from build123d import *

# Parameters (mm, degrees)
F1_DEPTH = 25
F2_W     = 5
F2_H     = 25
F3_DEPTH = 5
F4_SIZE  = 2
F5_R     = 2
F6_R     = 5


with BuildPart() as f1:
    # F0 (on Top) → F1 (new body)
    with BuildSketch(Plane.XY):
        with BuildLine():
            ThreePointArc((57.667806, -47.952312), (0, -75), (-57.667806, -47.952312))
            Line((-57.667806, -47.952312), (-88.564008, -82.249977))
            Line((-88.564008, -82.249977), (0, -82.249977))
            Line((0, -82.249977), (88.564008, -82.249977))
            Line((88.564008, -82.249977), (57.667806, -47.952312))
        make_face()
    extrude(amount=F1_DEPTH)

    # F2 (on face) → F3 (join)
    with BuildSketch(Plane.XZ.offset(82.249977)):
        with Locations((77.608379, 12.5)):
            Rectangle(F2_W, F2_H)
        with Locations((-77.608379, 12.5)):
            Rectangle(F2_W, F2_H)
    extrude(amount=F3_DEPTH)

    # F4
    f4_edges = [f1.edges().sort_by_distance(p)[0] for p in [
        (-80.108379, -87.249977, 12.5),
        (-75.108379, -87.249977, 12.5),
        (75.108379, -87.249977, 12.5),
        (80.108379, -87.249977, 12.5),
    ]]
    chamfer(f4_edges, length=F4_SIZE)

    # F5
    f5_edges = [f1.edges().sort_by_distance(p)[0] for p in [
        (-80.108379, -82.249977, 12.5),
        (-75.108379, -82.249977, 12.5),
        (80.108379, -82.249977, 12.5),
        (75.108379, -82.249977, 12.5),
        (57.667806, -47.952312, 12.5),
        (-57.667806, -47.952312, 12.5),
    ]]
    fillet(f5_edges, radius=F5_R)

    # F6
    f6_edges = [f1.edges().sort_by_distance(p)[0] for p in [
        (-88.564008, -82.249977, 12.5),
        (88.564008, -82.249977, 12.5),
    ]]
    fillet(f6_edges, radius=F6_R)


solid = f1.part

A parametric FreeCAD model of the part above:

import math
import FreeCAD as App
import Part
import Sketcher

V = App.Vector
Q = App.Units.Quantity


def edges_at(feature, points):
    """Names of the edges that pass closest to the given points."""
    edges = feature.Shape.Edges
    near = lambda p: min(range(len(edges)), key=lambda i: edges[i].distToShape(Part.Vertex(*p))[0])
    return sorted({f"Edge{near(p) + 1}" for p in points})

doc = App.newDocument("Part")
body = doc.addObject("PartDesign::Body", "Body")

# Sketch on XY plane
sketch1 = doc.addObject("Sketcher::SketchObject", "Sketch")
body.addObject(sketch1)
sketch1.AttachmentSupport = (doc.XY_Plane, [""])
sketch1.MapMode = "FlatFace"
sketch1.addGeometry(Part.ArcOfCircle(Part.Circle(V(0, 0, 0), V(0, 0, 1), 75), math.radians(-140), math.radians(-40)), False)
sketch1.addGeometry(Part.LineSegment(V(-58, -48, 0), V(-89, -82, 0)), False)
sketch1.addGeometry(Part.LineSegment(V(-89, -82, 0), V(89, -82, 0)), False)
sketch1.addGeometry(Part.LineSegment(V(89, -82, 0), V(58, -48, 0)), False)
sketch1.addConstraint(Sketcher.Constraint("Coincident", 0, 1, 1, 1))
sketch1.addConstraint(Sketcher.Constraint("Coincident", 1, 2, 2, 1))
sketch1.addConstraint(Sketcher.Constraint("Coincident", 2, 2, 3, 1))
sketch1.addConstraint(Sketcher.Constraint("Coincident", 3, 2, 0, 2))
sketch1.addConstraint(Sketcher.Constraint("Horizontal", 2))
sketch1.addConstraint(Sketcher.Constraint("Coincident", 0, 3, -1, 1))
sketch1.addConstraint(Sketcher.Constraint("Horizontal", 0, 1, 3, 2))
sketch1.addConstraint(Sketcher.Constraint("Equal", 1, 3))
sketch1.addConstraint(Sketcher.Constraint("Radius", 0, Q("75.000001 mm")))
sketch1.addConstraint(Sketcher.Constraint("DistanceX", 2, 1, 2, 2, Q("177.128016 mm")))
sketch1.addConstraint(Sketcher.Constraint("DistanceY", 0, 1, -1, 1, Q("47.952312 mm")))
sketch1.addConstraint(Sketcher.Constraint("DistanceY", 1, 2, 0, 3, Q("82.249978 mm")))
pad1 = doc.addObject("PartDesign::Pad", "Pad")
body.addObject(pad1)
pad1.Profile = sketch1
pad1.Length = 25

# Sketch on XZ plane
sketch2 = doc.addObject("Sketcher::SketchObject", "Sketch001")
body.addObject(sketch2)
sketch2.AttachmentSupport = (doc.XZ_Plane, [""])
sketch2.MapMode = "FlatFace"
sketch2.AttachmentOffset = App.Placement(V(0, 0, 82.249977), App.Rotation())
sketch2.addGeometry(Part.LineSegment(V(75, 25, 0), V(75, 0, 0)), False)
sketch2.addGeometry(Part.LineSegment(V(75, 0, 0), V(80, 0, 0)), False)
sketch2.addGeometry(Part.LineSegment(V(80, 0, 0), V(80, 25, 0)), False)
sketch2.addGeometry(Part.LineSegment(V(80, 25, 0), V(75, 25, 0)), False)
sketch2.addGeometry(Part.LineSegment(V(-80, 25, 0), V(-80, 0, 0)), False)
sketch2.addGeometry(Part.LineSegment(V(-80, 0, 0), V(-75, 0, 0)), False)
sketch2.addGeometry(Part.LineSegment(V(-75, 0, 0), V(-75, 25, 0)), False)
sketch2.addGeometry(Part.LineSegment(V(-75, 25, 0), V(-80, 25, 0)), False)
sketch2.addConstraint(Sketcher.Constraint("Coincident", 0, 2, 1, 1))
sketch2.addConstraint(Sketcher.Constraint("Coincident", 1, 2, 2, 1))
sketch2.addConstraint(Sketcher.Constraint("Coincident", 2, 2, 3, 1))
sketch2.addConstraint(Sketcher.Constraint("Coincident", 3, 2, 0, 1))
sketch2.addConstraint(Sketcher.Constraint("Coincident", 4, 2, 5, 1))
sketch2.addConstraint(Sketcher.Constraint("Coincident", 5, 2, 6, 1))
sketch2.addConstraint(Sketcher.Constraint("Coincident", 6, 2, 7, 1))
sketch2.addConstraint(Sketcher.Constraint("Coincident", 7, 2, 4, 1))
sketch2.addConstraint(Sketcher.Constraint("Vertical", 0))
sketch2.addConstraint(Sketcher.Constraint("Horizontal", 1))
sketch2.addConstraint(Sketcher.Constraint("Vertical", 2))
sketch2.addConstraint(Sketcher.Constraint("Horizontal", 3))
sketch2.addConstraint(Sketcher.Constraint("Vertical", 4))
sketch2.addConstraint(Sketcher.Constraint("Horizontal", 5))
sketch2.addConstraint(Sketcher.Constraint("Vertical", 6))
sketch2.addConstraint(Sketcher.Constraint("Horizontal", 7))
sketch2.addConstraint(Sketcher.Constraint("Symmetric", 1, 2, 4, 2, -1, 1))
sketch2.addConstraint(Sketcher.Constraint("Symmetric", 0, 2, 5, 2, -2))
sketch2.addConstraint(Sketcher.Constraint("Horizontal", 3, 2, 6, 2))
sketch2.addConstraint(Sketcher.Constraint("DistanceX", 1, 1, 1, 2, Q("5 mm")))
sketch2.addConstraint(Sketcher.Constraint("DistanceY", 0, 2, 0, 1, Q("25 mm")))
sketch2.addConstraint(Sketcher.Constraint("DistanceX", -1, 1, 0, 2, Q("75.108379 mm")))
pad2 = doc.addObject("PartDesign::Pad", "Pad001")
body.addObject(pad2)
pad2.Profile = sketch2
pad2.Length = 5
doc.recompute()

chamfer = doc.addObject("PartDesign::Chamfer", "Chamfer")
body.addObject(chamfer)
chamfer.Base = (pad2, edges_at(pad2, [
    (-80.108, -87.25, 12.5),
    (-75.108, -87.25, 12.5),
    (75.108, -87.25, 12.5),
    (80.108, -87.25, 12.5),
]))
chamfer.Size = 2
doc.recompute()

fillet = doc.addObject("PartDesign::Fillet", "Fillet")
body.addObject(fillet)
fillet.Base = (chamfer, edges_at(chamfer, [
    (-80.108, -82.25, 12.5),
    (-75.108, -82.25, 12.5),
    (80.108, -82.25, 12.5),
    (75.108, -82.25, 12.5),
    (57.668, -47.952, 12.5),
    (-57.668, -47.952, 12.5),
]))
fillet.Radius = 2
doc.recompute()

fillet2 = doc.addObject("PartDesign::Fillet", "Fillet001")
body.addObject(fillet2)
fillet2.Base = (fillet, edges_at(fillet, [(-88.564, -82.25, 12.5), (88.564, -82.25, 12.5)]))
fillet2.Radius = 5

doc.recompute()
